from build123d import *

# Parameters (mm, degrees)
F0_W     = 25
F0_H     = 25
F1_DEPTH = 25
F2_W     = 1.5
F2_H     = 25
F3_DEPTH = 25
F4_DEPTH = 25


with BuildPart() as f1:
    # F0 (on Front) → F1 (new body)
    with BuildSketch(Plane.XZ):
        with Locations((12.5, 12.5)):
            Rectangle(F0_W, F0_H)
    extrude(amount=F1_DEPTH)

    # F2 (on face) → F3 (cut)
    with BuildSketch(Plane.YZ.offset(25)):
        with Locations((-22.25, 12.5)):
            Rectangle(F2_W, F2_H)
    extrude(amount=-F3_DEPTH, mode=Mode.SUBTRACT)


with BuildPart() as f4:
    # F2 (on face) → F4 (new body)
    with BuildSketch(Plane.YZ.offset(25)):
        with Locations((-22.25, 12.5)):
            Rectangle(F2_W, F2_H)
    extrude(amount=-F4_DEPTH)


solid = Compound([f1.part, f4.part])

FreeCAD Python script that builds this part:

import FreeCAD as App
import Part
import Sketcher
from FreeCAD import Vector
Q = App.Units.Quantity

doc = App.newDocument("Part")
body = doc.addObject("PartDesign::Body", "Body")
body.AllowCompound = True

# Sketch on XZ plane
sketch1 = body.newObject("Sketcher::SketchObject", "Sketch")
sketch1.AttachmentSupport = (doc.getObject("XZ_Plane"), [""])
sketch1.MapMode = "FlatFace"
sketch1.addGeometry(Part.LineSegment(Vector(0, 25, 0), Vector(0, 0, 0)), False)
sketch1.addGeometry(Part.LineSegment(Vector(0, 0, 0), Vector(25, 0, 0)), False)
sketch1.addGeometry(Part.LineSegment(Vector(25, 0, 0), Vector(25, 25, 0)), False)
sketch1.addGeometry(Part.LineSegment(Vector(25, 25, 0), Vector(0, 25, 0)), False)
sketch1.addConstraint(Sketcher.Constraint("Coincident", 0, 2, 1, 1))
sketch1.addConstraint(Sketcher.Constraint("Coincident", 1, 2, 2, 1))
sketch1.addConstraint(Sketcher.Constraint("Coincident", 2, 2, 3, 1))
sketch1.addConstraint(Sketcher.Constraint("Coincident", 3, 2, 0, 1))
sketch1.addConstraint(Sketcher.Constraint("Vertical", 0))
sketch1.addConstraint(Sketcher.Constraint("Horizontal", 1))
sketch1.addConstraint(Sketcher.Constraint("Vertical", 2))
sketch1.addConstraint(Sketcher.Constraint("Horizontal", 3))
sketch1.addConstraint(Sketcher.Constraint("Coincident", 0, 2, -1, 1))
sketch1.addConstraint(Sketcher.Constraint("Equal", 3, 0))
sketch1.addConstraint(Sketcher.Constraint("DistanceX", 1, 1, 1, 2, Q("25 mm")))
pad1 = body.newObject("PartDesign::Pad", "Pad")
pad1.Profile = sketch1
pad1.Length = 25

# Sketch on YZ plane
sketch2 = body.newObject("Sketcher::SketchObject", "Sketch001")
sketch2.AttachmentSupport = (doc.getObject("YZ_Plane"), [""])
sketch2.MapMode = "FlatFace"
sketch2.AttachmentOffset = App.Placement(Vector(0, 0, 25), App.Rotation())
sketch2.addGeometry(Part.LineSegment(Vector(-23, 25, 0), Vector(-23, 0, 0)), False)
sketch2.addGeometry(Part.LineSegment(Vector(-23, 0, 0), Vector(-21.5, 0, 0)), False)
sketch2.addGeometry(Part.LineSegment(Vector(-21.5, 0, 0), Vector(-21.5, 25, 0)), False)
sketch2.addGeometry(Part.LineSegment(Vector(-21.5, 25, 0), Vector(-23, 25, 0)), False)
sketch2.addConstraint(Sketcher.Constraint("Coincident", 0, 2, 1, 1))
sketch2.addConstraint(Sketcher.Constraint("Coincident", 1, 2, 2, 1))
sketch2.addConstraint(Sketcher.Constraint("Coincident", 2, 2, 3, 1))
sketch2.addConstraint(Sketcher.Constraint("Coincident", 3, 2, 0, 1))
sketch2.addConstraint(Sketcher.Constraint("Vertical", 0))
sketch2.addConstraint(Sketcher.Constraint("Horizontal", 1))
sketch2.addConstraint(Sketcher.Constraint("Vertical", 2))
sketch2.addConstraint(Sketcher.Constraint("Horizontal", 3))
sketch2.addConstraint(Sketcher.Constraint("PointOnObject", 0, 2, -1))
sketch2.addConstraint(Sketcher.Constraint("DistanceY", 0, 2, 0, 1, Q("25 mm")))
sketch2.addConstraint(Sketcher.Constraint("DistanceX", 1, 1, 1, 2, Q("1.5 mm")))
sketch2.addConstraint(Sketcher.Constraint("DistanceX", 0, 2, -1, 1, Q("23 mm")))
pocket1 = body.newObject("PartDesign::Pocket", "Pocket")
pocket1.Profile = sketch2
pocket1.Length = 25
body2 = doc.addObject("PartDesign::Body", "Body001")

# Sketch on YZ plane
sketch3 = body2.newObject("Sketcher::SketchObject", "Sketch002")
sketch3.AttachmentSupport = (doc.getObject("YZ_Plane001"), [""])
sketch3.MapMode = "FlatFace"
sketch3.AttachmentOffset = App.Placement(Vector(0, 0, 25), App.Rotation())
sketch3.addGeometry(Part.LineSegment(Vector(-23, 25, 0), Vector(-23, 0, 0)), False)
sketch3.addGeometry(Part.LineSegment(Vector(-23, 0, 0), Vector(-21.5, 0, 0)), False)
sketch3.addGeometry(Part.LineSegment(Vector(-21.5, 0, 0), Vector(-21.5, 25, 0)), False)
sketch3.addGeometry(Part.LineSegment(Vector(-21.5, 25, 0), Vector(-23, 25, 0)), False)
sketch3.addConstraint(Sketcher.Constraint("Coincident", 0, 2, 1, 1))
sketch3.addConstraint(Sketcher.Constraint("Coincident", 1, 2, 2, 1))
sketch3.addConstraint(Sketcher.Constraint("Coincident", 2, 2, 3, 1))
sketch3.addConstraint(Sketcher.Constraint("Coincident", 3, 2, 0, 1))
sketch3.addConstraint(Sketcher.Constraint("Vertical", 0))
sketch3.addConstraint(Sketcher.Constraint("Horizontal", 1))
sketch3.addConstraint(Sketcher.Constraint("Vertical", 2))
sketch3.addConstraint(Sketcher.Constraint("Horizontal", 3))
sketch3.addConstraint(Sketcher.Constraint("PointOnObject", 0, 2, -1))
sketch3.addConstraint(Sketcher.Constraint("DistanceY", 0, 2, 0, 1, Q("25 mm")))
sketch3.addConstraint(Sketcher.Constraint("DistanceX", 1, 1, 1, 2, Q("1.5 mm")))
sketch3.addConstraint(Sketcher.Constraint("DistanceX", 0, 2, -1, 1, Q("23 mm")))
pad2 = body2.newObject("PartDesign::Pad", "Pad001")
pad2.Profile = sketch3
pad2.Length = 25
pad2.Reversed = True

doc.recompute()
